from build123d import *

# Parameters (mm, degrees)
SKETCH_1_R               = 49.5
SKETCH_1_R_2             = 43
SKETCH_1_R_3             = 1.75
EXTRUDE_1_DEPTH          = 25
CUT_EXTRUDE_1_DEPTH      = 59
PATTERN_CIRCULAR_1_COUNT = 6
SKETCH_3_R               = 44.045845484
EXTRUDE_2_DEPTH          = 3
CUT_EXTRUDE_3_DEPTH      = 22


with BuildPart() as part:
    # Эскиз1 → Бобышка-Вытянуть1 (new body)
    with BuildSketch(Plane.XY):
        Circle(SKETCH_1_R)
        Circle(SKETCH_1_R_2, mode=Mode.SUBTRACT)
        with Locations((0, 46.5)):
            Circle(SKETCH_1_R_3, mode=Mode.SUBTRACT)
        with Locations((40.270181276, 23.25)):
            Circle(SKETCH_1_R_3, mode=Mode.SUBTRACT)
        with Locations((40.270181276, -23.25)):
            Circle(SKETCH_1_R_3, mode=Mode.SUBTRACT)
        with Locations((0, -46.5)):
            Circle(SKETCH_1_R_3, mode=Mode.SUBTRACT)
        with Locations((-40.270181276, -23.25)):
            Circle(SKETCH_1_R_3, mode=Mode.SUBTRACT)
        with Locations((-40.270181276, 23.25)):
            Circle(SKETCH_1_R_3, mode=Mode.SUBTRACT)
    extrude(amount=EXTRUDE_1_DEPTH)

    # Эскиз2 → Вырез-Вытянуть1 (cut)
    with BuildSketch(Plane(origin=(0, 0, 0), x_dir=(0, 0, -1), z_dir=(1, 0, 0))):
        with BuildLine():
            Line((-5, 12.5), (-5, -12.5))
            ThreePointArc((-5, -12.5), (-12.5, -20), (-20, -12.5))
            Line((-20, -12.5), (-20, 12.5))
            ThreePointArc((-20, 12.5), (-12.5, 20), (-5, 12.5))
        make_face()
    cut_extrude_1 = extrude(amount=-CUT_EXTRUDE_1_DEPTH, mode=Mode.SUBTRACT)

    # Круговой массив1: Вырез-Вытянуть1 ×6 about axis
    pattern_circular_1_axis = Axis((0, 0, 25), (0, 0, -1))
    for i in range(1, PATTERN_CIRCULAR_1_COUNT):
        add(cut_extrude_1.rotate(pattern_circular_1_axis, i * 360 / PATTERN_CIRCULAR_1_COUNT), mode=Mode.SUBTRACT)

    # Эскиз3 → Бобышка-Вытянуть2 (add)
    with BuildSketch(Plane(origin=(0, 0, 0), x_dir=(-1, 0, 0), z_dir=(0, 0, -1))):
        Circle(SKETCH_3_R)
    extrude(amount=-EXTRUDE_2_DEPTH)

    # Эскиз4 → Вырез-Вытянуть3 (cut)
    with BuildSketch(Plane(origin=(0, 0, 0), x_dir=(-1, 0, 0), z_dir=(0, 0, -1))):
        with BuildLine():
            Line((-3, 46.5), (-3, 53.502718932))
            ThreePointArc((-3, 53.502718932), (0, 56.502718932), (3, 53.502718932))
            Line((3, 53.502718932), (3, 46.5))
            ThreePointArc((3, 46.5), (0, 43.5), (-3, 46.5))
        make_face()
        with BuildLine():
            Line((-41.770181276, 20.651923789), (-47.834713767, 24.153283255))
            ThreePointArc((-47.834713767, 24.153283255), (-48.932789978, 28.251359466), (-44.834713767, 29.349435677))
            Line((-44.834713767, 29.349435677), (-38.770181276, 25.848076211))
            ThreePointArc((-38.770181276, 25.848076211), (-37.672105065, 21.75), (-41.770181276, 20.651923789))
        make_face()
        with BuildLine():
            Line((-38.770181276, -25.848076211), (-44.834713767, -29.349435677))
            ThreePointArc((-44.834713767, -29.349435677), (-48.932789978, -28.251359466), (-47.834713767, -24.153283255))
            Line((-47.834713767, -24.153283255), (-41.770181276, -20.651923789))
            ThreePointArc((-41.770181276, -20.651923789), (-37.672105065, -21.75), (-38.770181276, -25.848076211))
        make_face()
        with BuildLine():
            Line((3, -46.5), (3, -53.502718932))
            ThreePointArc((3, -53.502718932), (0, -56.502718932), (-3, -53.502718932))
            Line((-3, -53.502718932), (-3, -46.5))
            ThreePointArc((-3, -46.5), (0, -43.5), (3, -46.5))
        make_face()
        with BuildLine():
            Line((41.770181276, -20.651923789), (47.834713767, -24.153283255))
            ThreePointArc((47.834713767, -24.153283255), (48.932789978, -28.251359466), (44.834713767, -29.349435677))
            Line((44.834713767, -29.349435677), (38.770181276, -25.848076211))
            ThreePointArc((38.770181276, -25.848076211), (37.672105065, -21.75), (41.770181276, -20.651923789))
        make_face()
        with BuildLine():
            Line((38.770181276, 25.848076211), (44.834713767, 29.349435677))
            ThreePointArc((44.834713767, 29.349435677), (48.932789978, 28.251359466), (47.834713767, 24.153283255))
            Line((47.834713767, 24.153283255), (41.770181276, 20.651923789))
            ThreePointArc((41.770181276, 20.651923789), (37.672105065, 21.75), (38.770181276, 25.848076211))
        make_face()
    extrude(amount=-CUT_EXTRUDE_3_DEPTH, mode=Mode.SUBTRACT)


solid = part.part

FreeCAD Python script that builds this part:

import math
import FreeCAD as App
import Part
import Sketcher

V = App.Vector
Q = App.Units.Quantity

doc = App.newDocument("Part")
body = doc.addObject("PartDesign::Body", "Body")

# Sketch on XY plane
sketch1 = body.newObject("Sketcher::SketchObject", "Sketch")
sketch1.AttachmentSupport = (doc.getObject("XY_Plane"), [""])
sketch1.MapMode = "FlatFace"
sketch1.addGeometry([
    Part.Circle(V(0, 0, 0), V(0, 0, 1), 49.5),  # 0
    Part.Circle(V(-40.3, -23.2, 0), V(0, 0, 1), 1.8),  # 1
    Part.Circle(V(0, -46.5, 0), V(0, 0, 1), 1.8),  # 2
    Part.Circle(V(40.3, -23.2, 0), V(0, 0, 1), 1.8),  # 3
    Part.Circle(V(-40.3, 23.2, 0), V(0, 0, 1), 1.8),  # 4
    Part.Circle(V(0, 0, 0), V(0, 0, 1), 43),  # 5
    Part.Circle(V(40.3, 23.2, 0), V(0, 0, 1), 1.8),  # 6
    Part.Circle(V(0, 46.5, 0), V(0, 0, 1), 1.8),  # 7
], False)
sketch1.addConstraint([
    Sketcher.Constraint("Coincident", 0, 3, -1, 1),
    Sketcher.Constraint("Coincident", 5, 3, -1, 1),
    Sketcher.Constraint("Equal", 1, 2),
    Sketcher.Constraint("Equal", 2, 3),
    Sketcher.Constraint("Equal", 3, 4),
    Sketcher.Constraint("Equal", 4, 6),
    Sketcher.Constraint("Equal", 6, 7),
    Sketcher.Constraint("Symmetric", 3, 3, 4, 3, -1, 1),
    Sketcher.Constraint("Symmetric", 1, 3, 6, 3, -1, 1),
    Sketcher.Constraint("Symmetric", 2, 3, 7, 3, -1, 1),
    Sketcher.Constraint("Symmetric", 1, 3, 3, 3, -2),
    Sketcher.Constraint("PointOnObject", 2, 3, -2),
    Sketcher.Constraint("Diameter", 0, Q("99 mm")),
    Sketcher.Constraint("Diameter", 5, Q("86 mm")),
    Sketcher.Constraint("Diameter", 1, Q("3.5 mm")),
    Sketcher.Constraint("DistanceY", 2, 3, -1, 1, Q("46.5 mm")),
    Sketcher.Constraint("DistanceY", 1, 3, 4, 3, Q("46.5 mm")),
    Sketcher.Constraint("DistanceX", 1, 3, -1, 1, Q("40.270181 mm")),
])
pad1 = body.newObject("PartDesign::Pad", "Pad")
pad1.Profile = sketch1
pad1.Length = 25

# Sketch on YZ plane
sketch2 = body.newObject("Sketcher::SketchObject", "Sketch001")
sketch2.AttachmentSupport = (doc.getObject("YZ_Plane"), [""])
sketch2.MapMode = "FlatFace"
sketch2.addGeometry([
    Part.LineSegment(V(-12, 5, 0), V(12, 5, 0)),
    Part.ArcOfCircle(Part.Circle(V(12, 12, 0), V(0, 0, 1), 8), math.radians(-90), math.radians(90)),
    Part.LineSegment(V(12, 20, 0), V(-12, 20, 0)),
    Part.ArcOfCircle(Part.Circle(V(-12, 12, 0), V(0, 0, 1), 8), math.radians(90), math.radians(270)),
], False)
sketch2.addConstraint([
    Sketcher.Constraint("Tangent", 0, 2, 1, 1),
    Sketcher.Constraint("Tangent", 1, 2, 2, 1),
    Sketcher.Constraint("Tangent", 2, 2, 3, 1),
    Sketcher.Constraint("Tangent", 3, 2, 0, 1),
    Sketcher.Constraint("Horizontal", 0),
    Sketcher.Constraint("Horizontal", 2),
    Sketcher.Constraint("Radius", 1, Q("7.5 mm")),
    Sketcher.Constraint("DistanceX", 0, 1, 0, 2, Q("25 mm")),
    Sketcher.Constraint("DistanceY", -1, 1, 0, 2, Q("5 mm")),
    Sketcher.Constraint("DistanceX", -1, 1, 1, 3, Q("12.5 mm")),
])
pocket1 = body.newObject("PartDesign::Pocket", "Pocket")
pocket1.Profile = sketch2
pocket1.Length = 59
doc.recompute()

polarpattern = body.newObject("PartDesign::PolarPattern", "PolarPattern")
polarpattern.Originals = [pocket1]
polarpattern.Axis = (doc.getObject("Z_Axis"), [""])
polarpattern.Angle = 360
polarpattern.Occurrences = 6
body.Tip = polarpattern

# Sketch on XY plane
sketch3 = body.newObject("Sketcher::SketchObject", "Sketch002")
sketch3.AttachmentSupport = (doc.getObject("XY_Plane"), [""])
sketch3.MapMode = "FlatFace"
sketch3.addGeometry(Part.Circle(V(0, 0, 0), V(0, 0, 1), 44), False)
sketch3.addConstraint([
    Sketcher.Constraint("Coincident", 0, 3, -1, 1),
    Sketcher.Constraint("Diameter", 0, Q("88.091691 mm")),
])
pad2 = body.newObject("PartDesign::Pad", "Pad001")
pad2.Profile = sketch3
pad2.Length = 3

# Sketch on XY plane
sketch4 = body.newObject("Sketcher::SketchObject", "Sketch003")
sketch4.AttachmentSupport = (doc.getObject("XY_Plane"), [""])
sketch4.MapMode = "FlatFace"
sketch4.addGeometry([
    Part.LineSegment(V(3, 53.5, 0), V(3, 46.5, 0)),  # 0
    Part.ArcOfCircle(Part.Circle(V(0, 46.5, 0), V(0, 0, 1), 3), math.radians(180), math.radians(360)),  # 1
    Part.LineSegment(V(-3, 46.5, 0), V(-3, 53.5, 0)),  # 2
    Part.ArcOfCircle(Part.Circle(V(0, 53.5, 0), V(0, 0, 1), 3), math.radians(0), math.radians(180)),  # 3
    Part.LineSegment(V(47.8, 24.2, 0), V(41.8, 20.7, 0)),  # 4
    Part.ArcOfCircle(Part.Circle(V(40.3, 23.2, 0), V(0, 0, 1), 3), math.radians(120), math.radians(300)),  # 5
    Part.LineSegment(V(38.8, 25.8, 0), V(44.8, 29.3, 0)),  # 6
    Part.ArcOfCircle(Part.Circle(V(46.3, 26.8, 0), V(0, 0, 1), 3), math.radians(-60), math.radians(120)),  # 7
    Part.LineSegment(V(44.8, -29.3, 0), V(38.8, -25.8, 0)),  # 8
    Part.ArcOfCircle(Part.Circle(V(40.3, -23.2, 0), V(0, 0, 1), 3), math.radians(60), math.radians(240)),  # 9
    Part.LineSegment(V(41.8, -20.7, 0), V(47.8, -24.2, 0)),  # 10
    Part.ArcOfCircle(Part.Circle(V(46.3, -26.8, 0), V(0, 0, 1), 3), math.radians(-120), math.radians(60)),  # 11
    Part.LineSegment(V(-3, -53.5, 0), V(-3, -46.5, 0)),  # 12
    Part.ArcOfCircle(Part.Circle(V(0, -46.5, 0), V(0, 0, 1), 3), math.radians(0), math.radians(180)),  # 13
    Part.LineSegment(V(3, -46.5, 0), V(3, -53.5, 0)),  # 14
    Part.ArcOfCircle(Part.Circle(V(0, -53.5, 0), V(0, 0, 1), 3), math.radians(180), math.radians(360)),  # 15
    Part.LineSegment(V(-47.8, -24.2, 0), V(-41.8, -20.7, 0)),  # 16
    Part.ArcOfCircle(Part.Circle(V(-40.3, -23.2, 0), V(0, 0, 1), 3), math.radians(-60), math.radians(120)),  # 17
    Part.LineSegment(V(-38.8, -25.8, 0), V(-44.8, -29.3, 0)),  # 18
    Part.ArcOfCircle(Part.Circle(V(-46.3, -26.8, 0), V(0, 0, 1), 3), math.radians(120), math.radians(300)),  # 19
    Part.LineSegment(V(-44.8, 29.3, 0), V(-38.8, 25.8, 0)),  # 20
    Part.ArcOfCircle(Part.Circle(V(-40.3, 23.2, 0), V(0, 0, 1), 3), math.radians(-120), math.radians(60)),  # 21
    Part.LineSegment(V(-41.8, 20.7, 0), V(-47.8, 24.2, 0)),  # 22
    Part.ArcOfCircle(Part.Circle(V(-46.3, 26.8, 0), V(0, 0, 1), 3), math.radians(60), math.radians(240)),  # 23
], False)
sketch4.addConstraint([
    Sketcher.Constraint("Tangent", 0, 2, 1, 2),
    Sketcher.Constraint("Tangent", 1, 1, 2, 1),
    Sketcher.Constraint("Tangent", 2, 2, 3, 2),
    Sketcher.Constraint("Tangent", 3, 1, 0, 1),
    Sketcher.Constraint("Tangent", 4, 2, 5, 2),
    Sketcher.Constraint("Tangent", 5, 1, 6, 1),
    Sketcher.Constraint("Tangent", 6, 2, 7, 2),
    Sketcher.Constraint("Tangent", 7, 1, 4, 1),
    Sketcher.Constraint("Tangent", 8, 2, 9, 2),
    Sketcher.Constraint("Tangent", 9, 1, 10, 1),
    Sketcher.Constraint("Tangent", 10, 2, 11, 2),
    Sketcher.Constraint("Tangent", 11, 1, 8, 1),
    Sketcher.Constraint("Tangent", 12, 2, 13, 2),
    Sketcher.Constraint("Tangent", 13, 1, 14, 1),
    Sketcher.Constraint("Tangent", 14, 2, 15, 2),
    Sketcher.Constraint("Tangent", 15, 1, 12, 1),
    Sketcher.Constraint("Tangent", 16, 2, 17, 2),
    Sketcher.Constraint("Tangent", 17, 1, 18, 1),
    Sketcher.Constraint("Tangent", 18, 2, 19, 2),
    Sketcher.Constraint("Tangent", 19, 1, 16, 1),
    Sketcher.Constraint("Tangent", 20, 2, 21, 2),
    Sketcher.Constraint("Tangent", 21, 1, 22, 1),
    Sketcher.Constraint("Tangent", 22, 2, 23, 2),
    Sketcher.Constraint("Tangent", 23, 1, 20, 1),
    Sketcher.Constraint("Vertical", 0),
    Sketcher.Constraint("Vertical", 2),
    Sketcher.Constraint("Vertical", 12),
    Sketcher.Constraint("Vertical", 14),
    Sketcher.Constraint("Equal", 3, 5),
    Sketcher.Constraint("Equal", 5, 7),
    Sketcher.Constraint("Equal", 7, 9),
    Sketcher.Constraint("Equal", 9, 11),
    Sketcher.Constraint("Equal", 11, 13),
    Sketcher.Constraint("Equal", 15, 17),
    Sketcher.Constraint("Equal", 17, 19),
    Sketcher.Constraint("Equal", 19, 21),
    Sketcher.Constraint("Equal", 21, 23),
    Sketcher.Constraint("Symmetric", 1, 3, 13, 3, -1, 1),
    Sketcher.Constraint("Symmetric", 5, 3, 17, 3, -1, 1),
    Sketcher.Constraint("Symmetric", 7, 3, 19, 3, -1, 1),
    Sketcher.Constraint("Symmetric", 9, 3, 21, 3, -1, 1),
    Sketcher.Constraint("Symmetric", 11, 3, 23, 3, -1, 1),
    Sketcher.Constraint("Symmetric", 9, 3, 17, 3, -2),
    Sketcher.Constraint("Symmetric", 11, 3, 19, 3, -2),
    Sketcher.Constraint("Symmetric", 3, 3, 15, 3, -1),
    Sketcher.Constraint("Radius", 1, Q("3 mm")),
    Sketcher.Constraint("Angle", 4, Q("-150 deg")),
    Sketcher.Constraint("DistanceY", 13, 3, 1, 3, Q("93 mm")),
    Sketcher.Constraint("DistanceY", 9, 3, 5, 3, Q("46.5 mm")),
    Sketcher.Constraint("DistanceY", 0, 2, 0, 1, Q("7.002719 mm")),
    Sketcher.Constraint("Distance", 4, Q("7.002719 mm")),
    Sketcher.Constraint("DistanceX", -1, 1, 5, 3, Q("40.270181 mm")),
])
pocket2 = body.newObject("PartDesign::Pocket", "Pocket001")
pocket2.Profile = sketch4
pocket2.Length = 22
pocket2.Reversed = True

doc.recompute()
